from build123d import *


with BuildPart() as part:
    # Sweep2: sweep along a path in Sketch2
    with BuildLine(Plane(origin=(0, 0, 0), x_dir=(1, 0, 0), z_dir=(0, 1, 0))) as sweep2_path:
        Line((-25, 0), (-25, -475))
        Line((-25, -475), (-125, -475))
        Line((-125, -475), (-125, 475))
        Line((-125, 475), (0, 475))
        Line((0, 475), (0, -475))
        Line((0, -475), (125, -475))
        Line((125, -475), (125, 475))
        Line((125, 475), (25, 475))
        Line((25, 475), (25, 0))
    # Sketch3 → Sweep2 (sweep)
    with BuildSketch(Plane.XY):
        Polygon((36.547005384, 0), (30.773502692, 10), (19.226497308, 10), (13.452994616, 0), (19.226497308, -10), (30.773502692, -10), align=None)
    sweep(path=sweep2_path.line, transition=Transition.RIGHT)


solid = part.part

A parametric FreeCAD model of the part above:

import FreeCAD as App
import Part
import Sketcher

V = App.Vector
Q = App.Units.Quantity

doc = App.newDocument("Part")
body = doc.addObject("PartDesign::Body", "Body")

sketch1 = body.newObject("Sketcher::SketchObject", "Sketch")
sketch1.AttachmentSupport = (doc.getObject("XY_Plane"), [""])
sketch1.MapMode = "FlatFace"
sketch1.addGeometry([
    Part.LineSegment(V(36.547005, 0, 0), V(30.773503, 10, 0)),
    Part.LineSegment(V(30.773503, 10, 0), V(19.226497, 10, 0)),
    Part.LineSegment(V(19.226497, 10, 0), V(13.452995, 0, 0)),
    Part.LineSegment(V(13.452995, 0, 0), V(19.226497, -10, 0)),
    Part.LineSegment(V(19.226497, -10, 0), V(30.773503, -10, 0)),
    Part.LineSegment(V(30.773503, -10, 0), V(36.547005, 0, 0)),
], False)
sketch1.addConstraint([
    Sketcher.Constraint("Coincident", 0, 2, 1, 1),
    Sketcher.Constraint("Coincident", 1, 2, 2, 1),
    Sketcher.Constraint("Coincident", 2, 2, 3, 1),
    Sketcher.Constraint("Coincident", 3, 2, 4, 1),
    Sketcher.Constraint("Coincident", 4, 2, 5, 1),
    Sketcher.Constraint("Coincident", 5, 2, 0, 1),
    Sketcher.Constraint("Horizontal", 1),
    Sketcher.Constraint("Horizontal", 4),
    Sketcher.Constraint("Symmetric", 1, 2, 3, 2, -1),
    Sketcher.Constraint("PointOnObject", 2, 2, -1),
    Sketcher.Constraint("PointOnObject", 5, 2, -1),
    Sketcher.Constraint("Parallel", 0, 3),
    Sketcher.Constraint("Parallel", 2, 5),
    Sketcher.Constraint("Angle", 0, Q("120 deg")),
    Sketcher.Constraint("DistanceY", -1, 1, 0, 2, Q("10 mm")),
    Sketcher.Constraint("DistanceX", 1, 2, 1, 1, Q("11.547005 mm")),
    Sketcher.Constraint("DistanceX", -1, 1, 0, 2, Q("30.773503 mm")),
])

sketch2 = body.newObject("Sketcher::SketchObject", "Sketch001")
sketch2.AttachmentSupport = (doc.getObject("XZ_Plane"), [""])
sketch2.MapMode = "FlatFace"
sketch2.addGeometry([
    Part.LineSegment(V(-25, 0, 0), V(-25, 475, 0)),
    Part.LineSegment(V(-25, 475, 0), V(-125, 475, 0)),
    Part.LineSegment(V(-125, 475, 0), V(-125, -475, 0)),
    Part.LineSegment(V(-125, -475, 0), V(0, -475, 0)),
    Part.LineSegment(V(0, -475, 0), V(0, 475, 0)),
    Part.LineSegment(V(0, 475, 0), V(125, 475, 0)),
    Part.LineSegment(V(125, 475, 0), V(125, -475, 0)),
    Part.LineSegment(V(125, -475, 0), V(25, -475, 0)),
    Part.LineSegment(V(25, -475, 0), V(25, 0, 0)),
], False)
sketch2.addConstraint([
    Sketcher.Constraint("Coincident", 0, 2, 1, 1),
    Sketcher.Constraint("Coincident", 1, 2, 2, 1),
    Sketcher.Constraint("Coincident", 2, 2, 3, 1),
    Sketcher.Constraint("Coincident", 3, 2, 4, 1),
    Sketcher.Constraint("Coincident", 4, 2, 5, 1),
    Sketcher.Constraint("Coincident", 5, 2, 6, 1),
    Sketcher.Constraint("Coincident", 6, 2, 7, 1),
    Sketcher.Constraint("Coincident", 7, 2, 8, 1),
    Sketcher.Constraint("Vertical", 0),
    Sketcher.Constraint("Horizontal", 1),
    Sketcher.Constraint("Vertical", 2),
    Sketcher.Constraint("Horizontal", 3),
    Sketcher.Constraint("Vertical", 4),
    Sketcher.Constraint("Horizontal", 5),
    Sketcher.Constraint("Vertical", 6),
    Sketcher.Constraint("Horizontal", 7),
    Sketcher.Constraint("Vertical", 8),
    Sketcher.Constraint("Symmetric", 3, 2, 4, 2, -1, 1),
    Sketcher.Constraint("Symmetric", 1, 2, 6, 2, -1, 1),
    Sketcher.Constraint("Symmetric", 0, 1, 8, 2, -1, 1),
    Sketcher.Constraint("PointOnObject", 0, 1, -1),
    Sketcher.Constraint("Horizontal", 1, 2, 4, 2),
    Sketcher.Constraint("DistanceX", 1, 2, 1, 1, Q("100 mm")),
    Sketcher.Constraint("DistanceX", 3, 1, 3, 2, Q("125 mm")),
    Sketcher.Constraint("DistanceY", 0, 1, 0, 2, Q("475 mm")),
])
doc.recompute()

additivepipe = body.newObject("PartDesign::AdditivePipe", "AdditivePipe")
additivepipe.Profile = sketch1
additivepipe.Spine = (sketch2, ["Edge1", "Edge2", "Edge3", "Edge4", "Edge5", "Edge6", "Edge7", "Edge8", "Edge9"])
additivepipe.Transition = "Right corner"

doc.recompute()
